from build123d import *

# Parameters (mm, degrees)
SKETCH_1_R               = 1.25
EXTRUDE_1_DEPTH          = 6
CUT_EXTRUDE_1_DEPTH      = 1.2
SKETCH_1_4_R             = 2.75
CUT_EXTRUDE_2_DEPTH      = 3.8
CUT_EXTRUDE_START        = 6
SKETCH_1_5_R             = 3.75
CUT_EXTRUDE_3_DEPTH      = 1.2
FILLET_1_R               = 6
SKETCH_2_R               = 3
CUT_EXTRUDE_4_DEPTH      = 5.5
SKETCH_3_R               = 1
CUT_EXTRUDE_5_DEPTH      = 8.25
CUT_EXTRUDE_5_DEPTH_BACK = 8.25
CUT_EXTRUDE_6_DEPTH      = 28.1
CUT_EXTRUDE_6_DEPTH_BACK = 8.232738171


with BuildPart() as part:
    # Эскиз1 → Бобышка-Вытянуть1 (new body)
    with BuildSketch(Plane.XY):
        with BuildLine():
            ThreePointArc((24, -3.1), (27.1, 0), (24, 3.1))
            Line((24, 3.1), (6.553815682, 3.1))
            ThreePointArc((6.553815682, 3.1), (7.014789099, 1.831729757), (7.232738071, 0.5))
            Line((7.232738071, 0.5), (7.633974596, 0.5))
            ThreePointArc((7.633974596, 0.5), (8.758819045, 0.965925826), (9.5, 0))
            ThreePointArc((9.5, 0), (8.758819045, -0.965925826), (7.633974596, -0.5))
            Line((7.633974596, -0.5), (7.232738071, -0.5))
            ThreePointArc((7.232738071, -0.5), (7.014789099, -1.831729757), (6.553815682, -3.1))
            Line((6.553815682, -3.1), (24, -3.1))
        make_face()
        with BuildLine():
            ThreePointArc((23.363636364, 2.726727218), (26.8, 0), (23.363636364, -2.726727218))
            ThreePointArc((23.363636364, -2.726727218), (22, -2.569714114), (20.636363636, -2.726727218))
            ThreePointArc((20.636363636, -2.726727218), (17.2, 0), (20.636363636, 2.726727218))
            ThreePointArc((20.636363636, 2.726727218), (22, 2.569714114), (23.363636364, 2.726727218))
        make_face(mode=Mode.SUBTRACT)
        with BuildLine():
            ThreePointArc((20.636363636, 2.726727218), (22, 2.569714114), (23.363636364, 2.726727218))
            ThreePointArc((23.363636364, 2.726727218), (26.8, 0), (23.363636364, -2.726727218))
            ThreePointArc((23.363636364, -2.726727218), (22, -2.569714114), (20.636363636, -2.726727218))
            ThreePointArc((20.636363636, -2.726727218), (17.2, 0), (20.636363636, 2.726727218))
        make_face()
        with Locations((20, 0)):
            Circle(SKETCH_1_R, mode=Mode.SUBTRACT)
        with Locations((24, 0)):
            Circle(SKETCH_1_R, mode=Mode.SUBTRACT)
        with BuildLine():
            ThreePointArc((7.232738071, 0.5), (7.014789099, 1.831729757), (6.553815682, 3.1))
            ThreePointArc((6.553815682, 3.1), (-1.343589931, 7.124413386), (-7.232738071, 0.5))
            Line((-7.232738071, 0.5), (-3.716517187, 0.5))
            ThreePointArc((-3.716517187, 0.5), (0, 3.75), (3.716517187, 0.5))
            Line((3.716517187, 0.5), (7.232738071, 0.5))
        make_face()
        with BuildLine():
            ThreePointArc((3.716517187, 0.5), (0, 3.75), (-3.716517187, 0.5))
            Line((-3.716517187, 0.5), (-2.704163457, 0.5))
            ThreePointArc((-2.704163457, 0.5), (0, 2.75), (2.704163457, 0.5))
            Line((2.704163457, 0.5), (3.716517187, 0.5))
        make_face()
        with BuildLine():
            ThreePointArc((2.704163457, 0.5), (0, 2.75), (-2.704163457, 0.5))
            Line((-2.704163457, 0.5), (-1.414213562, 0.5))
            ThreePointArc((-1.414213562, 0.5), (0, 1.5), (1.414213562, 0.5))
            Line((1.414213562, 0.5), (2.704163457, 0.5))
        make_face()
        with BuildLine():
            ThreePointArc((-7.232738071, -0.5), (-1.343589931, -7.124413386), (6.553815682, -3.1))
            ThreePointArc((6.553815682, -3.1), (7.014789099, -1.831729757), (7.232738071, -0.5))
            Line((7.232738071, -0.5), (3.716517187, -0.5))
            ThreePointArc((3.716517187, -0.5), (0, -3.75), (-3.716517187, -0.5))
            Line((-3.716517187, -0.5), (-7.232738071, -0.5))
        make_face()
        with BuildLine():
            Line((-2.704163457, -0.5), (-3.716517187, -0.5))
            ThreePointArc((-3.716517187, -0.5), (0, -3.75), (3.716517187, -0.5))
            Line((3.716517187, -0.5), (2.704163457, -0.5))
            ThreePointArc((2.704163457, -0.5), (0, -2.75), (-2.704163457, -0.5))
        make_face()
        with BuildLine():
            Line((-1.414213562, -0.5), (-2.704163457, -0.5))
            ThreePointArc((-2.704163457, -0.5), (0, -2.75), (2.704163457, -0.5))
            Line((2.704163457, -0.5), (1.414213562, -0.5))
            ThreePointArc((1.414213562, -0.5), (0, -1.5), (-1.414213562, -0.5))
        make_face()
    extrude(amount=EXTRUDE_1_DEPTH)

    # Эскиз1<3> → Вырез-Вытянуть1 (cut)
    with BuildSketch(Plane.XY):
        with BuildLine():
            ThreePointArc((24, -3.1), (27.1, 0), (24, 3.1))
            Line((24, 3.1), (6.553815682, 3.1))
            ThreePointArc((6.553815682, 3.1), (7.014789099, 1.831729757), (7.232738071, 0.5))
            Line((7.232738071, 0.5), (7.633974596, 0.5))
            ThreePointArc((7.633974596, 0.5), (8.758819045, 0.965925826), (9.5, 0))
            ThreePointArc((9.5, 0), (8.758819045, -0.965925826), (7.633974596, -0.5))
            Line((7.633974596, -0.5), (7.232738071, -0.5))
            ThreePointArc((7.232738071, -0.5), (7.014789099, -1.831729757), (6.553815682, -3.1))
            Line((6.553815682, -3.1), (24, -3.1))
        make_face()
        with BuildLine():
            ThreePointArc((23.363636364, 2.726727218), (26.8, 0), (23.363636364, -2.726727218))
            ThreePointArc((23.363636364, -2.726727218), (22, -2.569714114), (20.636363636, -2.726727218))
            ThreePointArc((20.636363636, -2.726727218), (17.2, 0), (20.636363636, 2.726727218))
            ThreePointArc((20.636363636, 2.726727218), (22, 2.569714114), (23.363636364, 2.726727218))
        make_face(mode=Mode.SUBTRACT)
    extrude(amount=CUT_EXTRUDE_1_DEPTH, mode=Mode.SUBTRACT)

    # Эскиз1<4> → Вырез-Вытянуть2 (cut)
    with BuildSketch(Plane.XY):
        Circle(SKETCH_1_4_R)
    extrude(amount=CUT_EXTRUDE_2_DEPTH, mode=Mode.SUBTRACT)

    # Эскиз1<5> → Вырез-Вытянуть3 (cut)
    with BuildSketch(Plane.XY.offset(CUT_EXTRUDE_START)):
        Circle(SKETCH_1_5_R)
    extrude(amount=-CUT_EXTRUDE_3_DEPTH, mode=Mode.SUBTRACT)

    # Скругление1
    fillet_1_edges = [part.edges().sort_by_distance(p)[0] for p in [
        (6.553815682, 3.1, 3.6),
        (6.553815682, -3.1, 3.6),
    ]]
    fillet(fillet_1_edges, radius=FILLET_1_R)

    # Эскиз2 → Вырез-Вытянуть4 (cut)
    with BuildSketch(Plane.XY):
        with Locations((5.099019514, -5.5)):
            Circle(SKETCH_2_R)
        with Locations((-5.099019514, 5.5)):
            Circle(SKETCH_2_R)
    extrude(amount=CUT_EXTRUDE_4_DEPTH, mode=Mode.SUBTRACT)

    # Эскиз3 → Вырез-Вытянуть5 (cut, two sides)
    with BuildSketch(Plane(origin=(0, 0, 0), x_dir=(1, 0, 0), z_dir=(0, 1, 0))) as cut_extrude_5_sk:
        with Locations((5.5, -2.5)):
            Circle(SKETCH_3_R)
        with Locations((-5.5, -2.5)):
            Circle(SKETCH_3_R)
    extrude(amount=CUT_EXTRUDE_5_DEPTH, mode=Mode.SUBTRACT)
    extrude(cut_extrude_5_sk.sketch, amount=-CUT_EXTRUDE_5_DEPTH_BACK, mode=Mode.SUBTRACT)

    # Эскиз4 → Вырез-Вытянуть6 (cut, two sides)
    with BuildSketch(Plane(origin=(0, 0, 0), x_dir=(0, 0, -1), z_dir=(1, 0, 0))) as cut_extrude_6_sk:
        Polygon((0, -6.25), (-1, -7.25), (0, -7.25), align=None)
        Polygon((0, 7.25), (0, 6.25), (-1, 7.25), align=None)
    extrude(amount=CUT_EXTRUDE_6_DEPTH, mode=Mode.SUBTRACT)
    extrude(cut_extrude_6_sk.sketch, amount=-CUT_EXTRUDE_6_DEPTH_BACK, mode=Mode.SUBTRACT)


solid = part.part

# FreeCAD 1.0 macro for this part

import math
import FreeCAD as App
import Part
import Sketcher
from FreeCAD import Vector


def edges_at(feature, points):
    """Names of the edges that pass closest to the given points."""
    edges = feature.Shape.Edges
    near = lambda p: min(range(len(edges)), key=lambda i: edges[i].distToShape(Part.Vertex(*p))[0])
    return sorted({f"Edge{near(p) + 1}" for p in points})

doc = App.newDocument("Part")
body = doc.addObject("PartDesign::Body", "Body")

sketch1 = body.newObject("Sketcher::SketchObject", "Sketch")
sketch1.AttachmentSupport = (doc.getObject("XY_Plane"), [""])
sketch1.MapMode = "FlatFace"
sketch1.addGeometry([
    Part.ArcOfCircle(Part.Circle(Vector(24, 0, 0), Vector(0, 0, 1), 3.1), math.radians(-90), math.radians(90)),
    Part.LineSegment(Vector(24, 3.1, 0), Vector(6.6, 3.1, 0)),
    Part.ArcOfCircle(Part.Circle(Vector(0, 0, 0), Vector(0, 0, 1), 7.2), math.radians(25), math.radians(176)),
    Part.LineSegment(Vector(-7.2, 0.5, 0), Vector(-1.4, 0.5, 0)),
    Part.ArcOfCircle(Part.Circle(Vector(0, 0, 0), Vector(0, 0, 1), 1.5), math.radians(19), math.radians(161)),
    Part.LineSegment(Vector(1.4, 0.5, 0), Vector(7.6, 0.5, 0)),
    Part.ArcOfCircle(Part.Circle(Vector(8.5, 0, 0), Vector(0, 0, 1), 1), math.radians(0), math.radians(150)),
    Part.ArcOfCircle(Part.Circle(Vector(8.5, 0, 0), Vector(0, 0, 1), 1), math.radians(-150), math.radians(0)),
    Part.LineSegment(Vector(7.6, -0.5, 0), Vector(1.4, -0.5, 0)),
    Part.ArcOfCircle(Part.Circle(Vector(0, 0, 0), Vector(0, 0, 1), 1.5), math.radians(-161), math.radians(-19)),
    Part.LineSegment(Vector(-1.4, -0.5, 0), Vector(-7.2, -0.5, 0)),
    Part.ArcOfCircle(Part.Circle(Vector(0, 0, 0), Vector(0, 0, 1), 7.2), math.radians(-176), math.radians(-25)),
    Part.LineSegment(Vector(6.6, -3.1, 0), Vector(24, -3.1, 0)),
    Part.Circle(Vector(20, 0, 0), Vector(0, 0, 1), 1.2),
    Part.Circle(Vector(24, 0, 0), Vector(0, 0, 1), 1.2),
], False)
sketch1.addConstraint([
    Sketcher.Constraint("Tangent", 0, 2, 1, 1),
    Sketcher.Constraint("Coincident", 1, 2, 2, 1),
    Sketcher.Constraint("Coincident", 2, 2, 3, 1),
    Sketcher.Constraint("Coincident", 3, 2, 4, 2),
    Sketcher.Constraint("Coincident", 4, 1, 5, 1),
    Sketcher.Constraint("Coincident", 5, 2, 6, 2),
    Sketcher.Constraint("Tangent", 6, 1, 7, 2),
    Sketcher.Constraint("Coincident", 7, 1, 8, 1),
    Sketcher.Constraint("Coincident", 8, 2, 9, 2),
    Sketcher.Constraint("Coincident", 9, 1, 10, 1),
    Sketcher.Constraint("Coincident", 10, 2, 11, 1),
    Sketcher.Constraint("Coincident", 11, 2, 12, 1),
    Sketcher.Constraint("Tangent", 12, 2, 0, 1),
    Sketcher.Constraint("Horizontal", 1),
    Sketcher.Constraint("Horizontal", 3),
    Sketcher.Constraint("Horizontal", 5),
    Sketcher.Constraint("Horizontal", 8),
    Sketcher.Constraint("Horizontal", 10),
    Sketcher.Constraint("Horizontal", 12),
    Sketcher.Constraint("Coincident", 2, 3, -1, 1),
    Sketcher.Constraint("Coincident", 4, 3, -1, 1),
    Sketcher.Constraint("Coincident", 9, 3, -1, 1),
    Sketcher.Constraint("Coincident", 11, 3, -1, 1),
    Sketcher.Constraint("Coincident", 14, 3, 0, 3),
    Sketcher.Constraint("Equal", 6, 7),
    Sketcher.Constraint("Equal", 4, 9),
    Sketcher.Constraint("Equal", 2, 11),
    Sketcher.Constraint("Equal", 13, 14),
    Sketcher.Constraint("Symmetric", 5, 2, 7, 1, -1),
    Sketcher.Constraint("PointOnObject", 0, 3, -1),
    Sketcher.Constraint("PointOnObject", 13, 3, -1),
    Sketcher.Constraint("PointOnObject", 6, 1, -1),
    Sketcher.Constraint("Horizontal", 3, 2, 4, 1),
    Sketcher.Constraint("Horizontal", 8, 2, 9, 1),
    Sketcher.Constraint("Radius", 6, 1.0),
    Sketcher.Constraint("Diameter", 13, 2.5),
    Sketcher.Constraint("Radius", 0, 3.1),
    Sketcher.Constraint("Radius", 4, 1.5),
    Sketcher.Constraint("Radius", 2, 7.25),
    Sketcher.Constraint("DistanceX", -1, 1, 0, 3, 24.0),
    Sketcher.Constraint("DistanceX", -1, 1, 13, 3, 20.0),
    Sketcher.Constraint("DistanceY", 7, 1, 5, 2, 1.0),
    Sketcher.Constraint("DistanceX", -1, 1, 6, 3, 8.5),
])
pad1 = body.newObject("PartDesign::Pad", "Pad")
pad1.Profile = sketch1
pad1.Length = 6

sketch2 = body.newObject("Sketcher::SketchObject", "Sketch001")
sketch2.AttachmentSupport = (doc.getObject("XY_Plane"), [""])
sketch2.MapMode = "FlatFace"
sketch2.addGeometry([
    Part.ArcOfCircle(Part.Circle(Vector(24, 0, 0), Vector(0, 0, 1), 3.1), math.radians(-90), math.radians(90)),
    Part.LineSegment(Vector(24, 3.1, 0), Vector(6.55, 3.1, 0)),
    Part.ArcOfCircle(Part.Circle(Vector(0, 0, 0), Vector(0, 0, 1), 7.25), math.radians(4), math.radians(25)),
    Part.LineSegment(Vector(7.23, 0.5, 0), Vector(7.63, 0.5, 0)),
    Part.ArcOfCircle(Part.Circle(Vector(8.5, 0, 0), Vector(0, 0, 1), 1), math.radians(0), math.radians(150)),
    Part.ArcOfCircle(Part.Circle(Vector(8.5, 0, 0), Vector(0, 0, 1), 1), math.radians(-150), math.radians(0)),
    Part.LineSegment(Vector(7.63, -0.5, 0), Vector(7.23, -0.5, 0)),
    Part.ArcOfCircle(Part.Circle(Vector(0, 0, 0), Vector(0, 0, 1), 7.25), math.radians(-25), math.radians(-4)),
    Part.LineSegment(Vector(6.55, -3.1, 0), Vector(24, -3.1, 0)),
    Part.ArcOfCircle(Part.Circle(Vector(22, 8.57, 0), Vector(0, 0, 1), 6), math.radians(-103), math.radians(-77)),
    Part.ArcOfCircle(Part.Circle(Vector(24, 0, 0), Vector(0, 0, 1), 2.8), math.radians(-103), math.radians(103)),
    Part.ArcOfCircle(Part.Circle(Vector(22, -8.57, 0), Vector(0, 0, 1), 6), math.radians(77), math.radians(103)),
    Part.ArcOfCircle(Part.Circle(Vector(20, 0, 0), Vector(0, 0, 1), 2.8), math.radians(77), math.radians(283)),
], False)
sketch2.addConstraint([
    Sketcher.Constraint("Tangent", 0, 2, 1, 1),
    Sketcher.Constraint("Coincident", 1, 2, 2, 2),
    Sketcher.Constraint("Coincident", 2, 1, 3, 1),
    Sketcher.Constraint("Coincident", 3, 2, 4, 2),
    Sketcher.Constraint("Tangent", 4, 1, 5, 2),
    Sketcher.Constraint("Coincident", 5, 1, 6, 1),
    Sketcher.Constraint("Coincident", 6, 2, 7, 2),
    Sketcher.Constraint("Coincident", 7, 1, 8, 1),
    Sketcher.Constraint("Tangent", 8, 2, 0, 1),
    Sketcher.Constraint("Tangent", 9, 2, 10, 2),
    Sketcher.Constraint("Tangent", 10, 1, 11, 1),
    Sketcher.Constraint("Tangent", 11, 2, 12, 2),
    Sketcher.Constraint("Tangent", 12, 1, 9, 1),
    Sketcher.Constraint("Horizontal", 1),
    Sketcher.Constraint("Horizontal", 3),
    Sketcher.Constraint("Horizontal", 6),
    Sketcher.Constraint("Horizontal", 8),
    Sketcher.Constraint("Coincident", 2, 3, -1, 1),
    Sketcher.Constraint("Coincident", 7, 3, -1, 1),
    Sketcher.Constraint("Coincident", 10, 3, 0, 3),
    Sketcher.Constraint("Equal", 4, 5),
    Sketcher.Constraint("Equal", 2, 7),
    Sketcher.Constraint("Equal", 9, 11),
    Sketcher.Constraint("Equal", 10, 12),
    Sketcher.Constraint("Symmetric", 9, 3, 11, 3, -1),
    Sketcher.Constraint("Symmetric", 3, 2, 5, 1, -1),
    Sketcher.Constraint("PointOnObject", 4, 1, -1),
    Sketcher.Constraint("Radius", 4, 1.0),
    Sketcher.Constraint("Radius", 9, 6.0),
    Sketcher.Constraint("Radius", 0, 3.1),
    Sketcher.Constraint("Radius", 10, 2.8),
    Sketcher.Constraint("Radius", 2, 7.25),
    Sketcher.Constraint("DistanceX", -1, 1, 0, 3, 24.0),
    Sketcher.Constraint("DistanceX", -1, 1, 9, 3, 22.0),
    Sketcher.Constraint("DistanceY", 5, 1, 3, 2, 1.0),
    Sketcher.Constraint("DistanceX", -1, 1, 4, 3, 8.5),
])
pocket1 = body.newObject("PartDesign::Pocket", "Pocket")
pocket1.Profile = sketch2
pocket1.Length = 1.2
pocket1.Reversed = True

sketch3 = body.newObject("Sketcher::SketchObject", "Sketch002")
sketch3.AttachmentSupport = (doc.getObject("XY_Plane"), [""])
sketch3.MapMode = "FlatFace"
sketch3.addGeometry(Part.Circle(Vector(0, 0, 0), Vector(0, 0, 1), 2.8), False)
sketch3.addConstraint([
    Sketcher.Constraint("Coincident", 0, 3, -1, 1),
    Sketcher.Constraint("Diameter", 0, 5.5),
])
pocket2 = body.newObject("PartDesign::Pocket", "Pocket001")
pocket2.Profile = sketch3
pocket2.Length = 3.8
pocket2.Reversed = True

sketch4 = body.newObject("Sketcher::SketchObject", "Sketch003")
sketch4.AttachmentSupport = (doc.getObject("XY_Plane"), [""])
sketch4.MapMode = "FlatFace"
sketch4.AttachmentOffset = App.Placement(Vector(0, 0, 6), App.Rotation())
sketch4.addGeometry(Part.Circle(Vector(0, 0, 0), Vector(0, 0, 1), 3.8), False)
sketch4.addConstraint([
    Sketcher.Constraint("Coincident", 0, 3, -1, 1),
    Sketcher.Constraint("Diameter", 0, 7.5),
])
pocket3 = body.newObject("PartDesign::Pocket", "Pocket002")
pocket3.Profile = sketch4
pocket3.Length = 1.2
doc.recompute()

fillet = body.newObject("PartDesign::Fillet", "Fillet")
fillet.Base = (pocket3, edges_at(pocket3, [(6.554, 3.1, 3.6), (6.554, -3.1, 3.6)]))
fillet.Radius = 6

sketch5 = body.newObject("Sketcher::SketchObject", "Sketch004")
sketch5.AttachmentSupport = (doc.getObject("XY_Plane"), [""])
sketch5.MapMode = "FlatFace"
sketch5.addGeometry([
    Part.Circle(Vector(5.1, -5.5, 0), Vector(0, 0, 1), 3),
    Part.Circle(Vector(-5.1, 5.5, 0), Vector(0, 0, 1), 3),
], False)
sketch5.addConstraint([
    Sketcher.Constraint("Equal", 0, 1),
    Sketcher.Constraint("Symmetric", 0, 3, 1, 3, -1, 1),
    Sketcher.Constraint("Diameter", 0, 6.0),
    Sketcher.Constraint("DistanceY", 0, 3, 1, 3, 11.0),
    Sketcher.Constraint("DistanceX", -1, 1, 0, 3, 5.09902),
])
pocket4 = body.newObject("PartDesign::Pocket", "Pocket003")
pocket4.Profile = sketch5
pocket4.Length = 5.5
pocket4.Reversed = True

sketch6 = body.newObject("Sketcher::SketchObject", "Sketch005")
sketch6.AttachmentSupport = (doc.getObject("XZ_Plane"), [""])
sketch6.MapMode = "FlatFace"
sketch6.addGeometry([
    Part.Circle(Vector(5.5, 2.5, 0), Vector(0, 0, 1), 1),
    Part.Circle(Vector(-5.5, 2.5, 0), Vector(0, 0, 1), 1),
], False)
sketch6.addConstraint([
    Sketcher.Constraint("Equal", 0, 1),
    Sketcher.Constraint("Symmetric", 0, 3, 1, 3, -2),
    Sketcher.Constraint("Diameter", 0, 2.0),
    Sketcher.Constraint("DistanceX", 1, 3, 0, 3, 11.0),
    Sketcher.Constraint("DistanceY", -1, 1, 0, 3, 2.5),
])
pocket5 = body.newObject("PartDesign::Pocket", "Pocket004")
pocket5.Profile = sketch6
pocket5.Type = "ThroughAll"
pocket5.Midplane = True

sketch7 = body.newObject("Sketcher::SketchObject", "Sketch006")
sketch7.AttachmentSupport = (doc.getObject("YZ_Plane"), [""])
sketch7.MapMode = "FlatFace"
sketch7.addGeometry([
    Part.LineSegment(Vector(-6.2, 0, 0), Vector(-7.2, 1, 0)),
    Part.LineSegment(Vector(-7.2, 1, 0), Vector(-7.2, 0, 0)),
    Part.LineSegment(Vector(-7.2, 0, 0), Vector(-6.2, 0, 0)),
    Part.LineSegment(Vector(6.2, 0, 0), Vector(7.2, 0, 0)),
    Part.LineSegment(Vector(7.2, 0, 0), Vector(7.2, 1, 0)),
    Part.LineSegment(Vector(7.2, 1, 0), Vector(6.2, 0, 0)),
], False)
sketch7.addConstraint([
    Sketcher.Constraint("Coincident", 0, 2, 1, 1),
    Sketcher.Constraint("Coincident", 1, 2, 2, 1),
    Sketcher.Constraint("Coincident", 2, 2, 0, 1),
    Sketcher.Constraint("Coincident", 3, 2, 4, 1),
    Sketcher.Constraint("Coincident", 4, 2, 5, 1),
    Sketcher.Constraint("Coincident", 5, 2, 3, 1),
    Sketcher.Constraint("Vertical", 1),
    Sketcher.Constraint("Horizontal", 2),
    Sketcher.Constraint("Horizontal", 3),
    Sketcher.Constraint("Vertical", 4),
    Sketcher.Constraint("Symmetric", 1, 2, 3, 2, -1, 1),
    Sketcher.Constraint("Symmetric", 2, 2, 5, 2, -2),
    Sketcher.Constraint("Perpendicular", 0, 5),
    Sketcher.Constraint("Horizontal", 0, 2, 4, 2),
    Sketcher.Constraint("DistanceX", 2, 1, 2, 2, 1.0),
    Sketcher.Constraint("DistanceX", 2, 2, 3, 2, 13.5),
])
pocket6 = body.newObject("PartDesign::Pocket", "Pocket005")
pocket6.Profile = sketch7
pocket6.Type = "ThroughAll"
pocket6.Midplane = True

doc.recompute()
